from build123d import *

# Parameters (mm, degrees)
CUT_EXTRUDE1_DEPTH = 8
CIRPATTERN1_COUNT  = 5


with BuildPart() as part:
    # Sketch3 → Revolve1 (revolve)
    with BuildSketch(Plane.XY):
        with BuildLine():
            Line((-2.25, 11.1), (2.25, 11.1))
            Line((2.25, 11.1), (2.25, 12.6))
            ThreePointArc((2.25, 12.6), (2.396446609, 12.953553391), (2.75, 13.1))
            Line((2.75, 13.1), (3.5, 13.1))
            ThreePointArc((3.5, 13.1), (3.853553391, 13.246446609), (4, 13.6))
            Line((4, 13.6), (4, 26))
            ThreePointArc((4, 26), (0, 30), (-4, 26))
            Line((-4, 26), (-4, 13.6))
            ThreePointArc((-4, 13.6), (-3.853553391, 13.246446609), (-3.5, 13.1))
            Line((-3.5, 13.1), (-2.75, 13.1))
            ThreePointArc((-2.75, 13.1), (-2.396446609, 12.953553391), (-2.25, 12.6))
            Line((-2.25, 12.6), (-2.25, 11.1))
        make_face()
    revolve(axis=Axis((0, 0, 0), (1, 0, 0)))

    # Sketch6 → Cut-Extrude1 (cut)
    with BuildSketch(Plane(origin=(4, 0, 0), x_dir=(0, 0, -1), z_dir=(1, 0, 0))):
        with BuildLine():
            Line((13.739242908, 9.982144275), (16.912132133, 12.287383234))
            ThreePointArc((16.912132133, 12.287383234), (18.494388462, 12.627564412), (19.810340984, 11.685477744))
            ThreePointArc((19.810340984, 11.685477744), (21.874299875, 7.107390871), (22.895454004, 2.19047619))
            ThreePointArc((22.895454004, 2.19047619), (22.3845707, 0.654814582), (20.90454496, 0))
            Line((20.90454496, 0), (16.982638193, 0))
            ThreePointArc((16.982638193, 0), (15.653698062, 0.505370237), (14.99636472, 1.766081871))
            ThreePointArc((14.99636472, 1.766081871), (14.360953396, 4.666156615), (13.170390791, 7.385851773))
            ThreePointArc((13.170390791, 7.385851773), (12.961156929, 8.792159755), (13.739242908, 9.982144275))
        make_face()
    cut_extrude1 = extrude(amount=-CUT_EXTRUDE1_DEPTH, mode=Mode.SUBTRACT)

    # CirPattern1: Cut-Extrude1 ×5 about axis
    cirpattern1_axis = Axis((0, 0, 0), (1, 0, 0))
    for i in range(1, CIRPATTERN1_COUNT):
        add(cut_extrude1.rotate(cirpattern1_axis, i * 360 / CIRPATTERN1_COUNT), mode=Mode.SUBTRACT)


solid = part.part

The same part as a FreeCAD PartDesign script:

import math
import FreeCAD as App
import Part
import Sketcher
from FreeCAD import Vector
Q = App.Units.Quantity

doc = App.newDocument("Part")
body = doc.addObject("PartDesign::Body", "Body")

sketch1 = body.newObject("Sketcher::SketchObject", "Sketch")
sketch1.AttachmentSupport = (doc.getObject("XY_Plane"), [""])
sketch1.MapMode = "FlatFace"
sketch1.addGeometry(Part.LineSegment(Vector(-2.25, 11.1, 0), Vector(2.25, 11.1, 0)), False)
sketch1.addGeometry(Part.LineSegment(Vector(2.25, 11.1, 0), Vector(2.25, 12.6, 0)), False)
sketch1.addGeometry(Part.ArcOfCircle(Part.Circle(Vector(2.75, 12.6, 0), Vector(0, 0, 1), 0.5), math.radians(90), math.radians(180)), False)
sketch1.addGeometry(Part.LineSegment(Vector(2.75, 13.1, 0), Vector(3.5, 13.1, 0)), False)
sketch1.addGeometry(Part.ArcOfCircle(Part.Circle(Vector(3.5, 13.6, 0), Vector(0, 0, 1), 0.5), math.radians(-90), math.radians(0)), False)
sketch1.addGeometry(Part.LineSegment(Vector(4, 13.6, 0), Vector(4, 26, 0)), False)
sketch1.addGeometry(Part.ArcOfCircle(Part.Circle(Vector(0, 26, 0), Vector(0, 0, 1), 4), math.radians(0), math.radians(180)), False)
sketch1.addGeometry(Part.LineSegment(Vector(-4, 26, 0), Vector(-4, 13.6, 0)), False)
sketch1.addGeometry(Part.ArcOfCircle(Part.Circle(Vector(-3.5, 13.6, 0), Vector(0, 0, 1), 0.5), math.radians(180), math.radians(270)), False)
sketch1.addGeometry(Part.LineSegment(Vector(-3.5, 13.1, 0), Vector(-2.75, 13.1, 0)), False)
sketch1.addGeometry(Part.ArcOfCircle(Part.Circle(Vector(-2.75, 12.6, 0), Vector(0, 0, 1), 0.5), math.radians(0), math.radians(90)), False)
sketch1.addGeometry(Part.LineSegment(Vector(-2.25, 12.6, 0), Vector(-2.25, 11.1, 0)), False)
sketch1.addConstraint(Sketcher.Constraint("Coincident", 0, 2, 1, 1))
sketch1.addConstraint(Sketcher.Constraint("Tangent", 1, 2, 2, 2))
sketch1.addConstraint(Sketcher.Constraint("Tangent", 2, 1, 3, 1))
sketch1.addConstraint(Sketcher.Constraint("Tangent", 3, 2, 4, 1))
sketch1.addConstraint(Sketcher.Constraint("Tangent", 4, 2, 5, 1))
sketch1.addConstraint(Sketcher.Constraint("Tangent", 5, 2, 6, 1))
sketch1.addConstraint(Sketcher.Constraint("Tangent", 6, 2, 7, 1))
sketch1.addConstraint(Sketcher.Constraint("Tangent", 7, 2, 8, 1))
sketch1.addConstraint(Sketcher.Constraint("Tangent", 8, 2, 9, 1))
sketch1.addConstraint(Sketcher.Constraint("Tangent", 9, 2, 10, 2))
sketch1.addConstraint(Sketcher.Constraint("Tangent", 10, 1, 11, 1))
sketch1.addConstraint(Sketcher.Constraint("Coincident", 11, 2, 0, 1))
sketch1.addConstraint(Sketcher.Constraint("Horizontal", 0))
sketch1.addConstraint(Sketcher.Constraint("Vertical", 1))
sketch1.addConstraint(Sketcher.Constraint("Horizontal", 3))
sketch1.addConstraint(Sketcher.Constraint("Vertical", 5))
sketch1.addConstraint(Sketcher.Constraint("Vertical", 7))
sketch1.addConstraint(Sketcher.Constraint("Horizontal", 9))
sketch1.addConstraint(Sketcher.Constraint("Vertical", 11))
sketch1.addConstraint(Sketcher.Constraint("Equal", 2, 4))
sketch1.addConstraint(Sketcher.Constraint("Equal", 4, 8))
sketch1.addConstraint(Sketcher.Constraint("Equal", 8, 10))
sketch1.addConstraint(Sketcher.Constraint("Symmetric", 4, 3, 8, 3, -2))
sketch1.addConstraint(Sketcher.Constraint("Equal", 3, 9))
sketch1.addConstraint(Sketcher.Constraint("Radius", 6, 4.0))
sketch1.addConstraint(Sketcher.Constraint("Radius", 2, 0.5))
sketch1.addConstraint(Sketcher.Constraint("DistanceX", 0, 1, 0, 2, 4.5))
sketch1.addConstraint(Sketcher.Constraint("DistanceY", 1, 1, 1, 2, 1.5))
sketch1.addConstraint(Sketcher.Constraint("DistanceY", 5, 1, 5, 2, 12.4))
sketch1.addConstraint(Sketcher.Constraint("DistanceY", -1, 1, 6, 3, 26.0))
revolution = body.newObject("PartDesign::Revolution", "Revolution")
revolution.Profile = sketch1
revolution.ReferenceAxis = (sketch1, ["H_Axis"])
revolution.Angle = 360

sketch2 = body.newObject("Sketcher::SketchObject", "Sketch001")
sketch2.AttachmentSupport = (doc.getObject("YZ_Plane"), [""])
sketch2.MapMode = "FlatFace"
sketch2.AttachmentOffset = App.Placement(Vector(0, 0, 4), App.Rotation())
sketch2.addGeometry(Part.LineSegment(Vector(12.3, -16.9, 0), Vector(10, -13.7, 0)), False)
sketch2.addGeometry(Part.ArcOfCircle(Part.Circle(Vector(8.4, -14.9, 0), Vector(0, 0, 1), 2), math.radians(36), math.radians(119)), False)
sketch2.addGeometry(Part.ArcOfCircle(Part.Circle(Vector(0, 0, 0), Vector(0, 0, 1), 15.1), math.radians(-83), math.radians(-61)), False)
sketch2.addGeometry(Part.ArcOfCircle(Part.Circle(Vector(2, -17, 0), Vector(0, 0, 1), 2), math.radians(97), math.radians(180)), False)
sketch2.addGeometry(Part.LineSegment(Vector(0, -17, 0), Vector(0, -20.9, 0)), False)
sketch2.addGeometry(Part.ArcOfCircle(Part.Circle(Vector(2, -20.9, 0), Vector(0, 0, 1), 2), math.radians(180), math.radians(275)), False)
sketch2.addGeometry(Part.ArcOfCircle(Part.Circle(Vector(0, 0, 0), Vector(0, 0, 1), 23), math.radians(-85), math.radians(-59)), False)
sketch2.addGeometry(Part.ArcOfCircle(Part.Circle(Vector(10.7, -18.1, 0), Vector(0, 0, 1), 2), math.radians(-59), math.radians(36)), False)
sketch2.addConstraint(Sketcher.Constraint("Tangent", 0, 2, 1, 1))
sketch2.addConstraint(Sketcher.Constraint("Tangent", 1, 2, 2, 2))
sketch2.addConstraint(Sketcher.Constraint("Tangent", 2, 1, 3, 1))
sketch2.addConstraint(Sketcher.Constraint("Tangent", 3, 2, 4, 1))
sketch2.addConstraint(Sketcher.Constraint("Tangent", 4, 2, 5, 1))
sketch2.addConstraint(Sketcher.Constraint("Tangent", 5, 2, 6, 1))
sketch2.addConstraint(Sketcher.Constraint("Tangent", 6, 2, 7, 1))
sketch2.addConstraint(Sketcher.Constraint("Tangent", 7, 2, 0, 1))
sketch2.addConstraint(Sketcher.Constraint("Vertical", 4))
sketch2.addConstraint(Sketcher.Constraint("Coincident", 2, 3, -1, 1))
sketch2.addConstraint(Sketcher.Constraint("Coincident", 6, 3, -1, 1))
sketch2.addConstraint(Sketcher.Constraint("Equal", 1, 3))
sketch2.addConstraint(Sketcher.Constraint("Equal", 3, 5))
sketch2.addConstraint(Sketcher.Constraint("Equal", 5, 7))
sketch2.addConstraint(Sketcher.Constraint("PointOnObject", 3, 2, -2))
sketch2.addConstraint(Sketcher.Constraint("Radius", 1, 2.0))
sketch2.addConstraint(Sketcher.Constraint("Radius", 6, 23.0))
sketch2.addConstraint(Sketcher.Constraint("Radius", 2, 15.1))
sketch2.addConstraint(Sketcher.Constraint("Angle", 0, Q("126 deg")))
sketch2.addConstraint(Sketcher.Constraint("DistanceY", 6, 2, 0, 2, 6.071098))
pocket1 = body.newObject("PartDesign::Pocket", "Pocket")
pocket1.Profile = sketch2
pocket1.Length = 8
doc.recompute()

polarpattern = body.newObject("PartDesign::PolarPattern", "PolarPattern")
polarpattern.Originals = [pocket1]
polarpattern.Axis = (doc.getObject("X_Axis"), [""])
polarpattern.Angle = 360
polarpattern.Occurrences = 5
body.Tip = polarpattern

doc.recompute()
